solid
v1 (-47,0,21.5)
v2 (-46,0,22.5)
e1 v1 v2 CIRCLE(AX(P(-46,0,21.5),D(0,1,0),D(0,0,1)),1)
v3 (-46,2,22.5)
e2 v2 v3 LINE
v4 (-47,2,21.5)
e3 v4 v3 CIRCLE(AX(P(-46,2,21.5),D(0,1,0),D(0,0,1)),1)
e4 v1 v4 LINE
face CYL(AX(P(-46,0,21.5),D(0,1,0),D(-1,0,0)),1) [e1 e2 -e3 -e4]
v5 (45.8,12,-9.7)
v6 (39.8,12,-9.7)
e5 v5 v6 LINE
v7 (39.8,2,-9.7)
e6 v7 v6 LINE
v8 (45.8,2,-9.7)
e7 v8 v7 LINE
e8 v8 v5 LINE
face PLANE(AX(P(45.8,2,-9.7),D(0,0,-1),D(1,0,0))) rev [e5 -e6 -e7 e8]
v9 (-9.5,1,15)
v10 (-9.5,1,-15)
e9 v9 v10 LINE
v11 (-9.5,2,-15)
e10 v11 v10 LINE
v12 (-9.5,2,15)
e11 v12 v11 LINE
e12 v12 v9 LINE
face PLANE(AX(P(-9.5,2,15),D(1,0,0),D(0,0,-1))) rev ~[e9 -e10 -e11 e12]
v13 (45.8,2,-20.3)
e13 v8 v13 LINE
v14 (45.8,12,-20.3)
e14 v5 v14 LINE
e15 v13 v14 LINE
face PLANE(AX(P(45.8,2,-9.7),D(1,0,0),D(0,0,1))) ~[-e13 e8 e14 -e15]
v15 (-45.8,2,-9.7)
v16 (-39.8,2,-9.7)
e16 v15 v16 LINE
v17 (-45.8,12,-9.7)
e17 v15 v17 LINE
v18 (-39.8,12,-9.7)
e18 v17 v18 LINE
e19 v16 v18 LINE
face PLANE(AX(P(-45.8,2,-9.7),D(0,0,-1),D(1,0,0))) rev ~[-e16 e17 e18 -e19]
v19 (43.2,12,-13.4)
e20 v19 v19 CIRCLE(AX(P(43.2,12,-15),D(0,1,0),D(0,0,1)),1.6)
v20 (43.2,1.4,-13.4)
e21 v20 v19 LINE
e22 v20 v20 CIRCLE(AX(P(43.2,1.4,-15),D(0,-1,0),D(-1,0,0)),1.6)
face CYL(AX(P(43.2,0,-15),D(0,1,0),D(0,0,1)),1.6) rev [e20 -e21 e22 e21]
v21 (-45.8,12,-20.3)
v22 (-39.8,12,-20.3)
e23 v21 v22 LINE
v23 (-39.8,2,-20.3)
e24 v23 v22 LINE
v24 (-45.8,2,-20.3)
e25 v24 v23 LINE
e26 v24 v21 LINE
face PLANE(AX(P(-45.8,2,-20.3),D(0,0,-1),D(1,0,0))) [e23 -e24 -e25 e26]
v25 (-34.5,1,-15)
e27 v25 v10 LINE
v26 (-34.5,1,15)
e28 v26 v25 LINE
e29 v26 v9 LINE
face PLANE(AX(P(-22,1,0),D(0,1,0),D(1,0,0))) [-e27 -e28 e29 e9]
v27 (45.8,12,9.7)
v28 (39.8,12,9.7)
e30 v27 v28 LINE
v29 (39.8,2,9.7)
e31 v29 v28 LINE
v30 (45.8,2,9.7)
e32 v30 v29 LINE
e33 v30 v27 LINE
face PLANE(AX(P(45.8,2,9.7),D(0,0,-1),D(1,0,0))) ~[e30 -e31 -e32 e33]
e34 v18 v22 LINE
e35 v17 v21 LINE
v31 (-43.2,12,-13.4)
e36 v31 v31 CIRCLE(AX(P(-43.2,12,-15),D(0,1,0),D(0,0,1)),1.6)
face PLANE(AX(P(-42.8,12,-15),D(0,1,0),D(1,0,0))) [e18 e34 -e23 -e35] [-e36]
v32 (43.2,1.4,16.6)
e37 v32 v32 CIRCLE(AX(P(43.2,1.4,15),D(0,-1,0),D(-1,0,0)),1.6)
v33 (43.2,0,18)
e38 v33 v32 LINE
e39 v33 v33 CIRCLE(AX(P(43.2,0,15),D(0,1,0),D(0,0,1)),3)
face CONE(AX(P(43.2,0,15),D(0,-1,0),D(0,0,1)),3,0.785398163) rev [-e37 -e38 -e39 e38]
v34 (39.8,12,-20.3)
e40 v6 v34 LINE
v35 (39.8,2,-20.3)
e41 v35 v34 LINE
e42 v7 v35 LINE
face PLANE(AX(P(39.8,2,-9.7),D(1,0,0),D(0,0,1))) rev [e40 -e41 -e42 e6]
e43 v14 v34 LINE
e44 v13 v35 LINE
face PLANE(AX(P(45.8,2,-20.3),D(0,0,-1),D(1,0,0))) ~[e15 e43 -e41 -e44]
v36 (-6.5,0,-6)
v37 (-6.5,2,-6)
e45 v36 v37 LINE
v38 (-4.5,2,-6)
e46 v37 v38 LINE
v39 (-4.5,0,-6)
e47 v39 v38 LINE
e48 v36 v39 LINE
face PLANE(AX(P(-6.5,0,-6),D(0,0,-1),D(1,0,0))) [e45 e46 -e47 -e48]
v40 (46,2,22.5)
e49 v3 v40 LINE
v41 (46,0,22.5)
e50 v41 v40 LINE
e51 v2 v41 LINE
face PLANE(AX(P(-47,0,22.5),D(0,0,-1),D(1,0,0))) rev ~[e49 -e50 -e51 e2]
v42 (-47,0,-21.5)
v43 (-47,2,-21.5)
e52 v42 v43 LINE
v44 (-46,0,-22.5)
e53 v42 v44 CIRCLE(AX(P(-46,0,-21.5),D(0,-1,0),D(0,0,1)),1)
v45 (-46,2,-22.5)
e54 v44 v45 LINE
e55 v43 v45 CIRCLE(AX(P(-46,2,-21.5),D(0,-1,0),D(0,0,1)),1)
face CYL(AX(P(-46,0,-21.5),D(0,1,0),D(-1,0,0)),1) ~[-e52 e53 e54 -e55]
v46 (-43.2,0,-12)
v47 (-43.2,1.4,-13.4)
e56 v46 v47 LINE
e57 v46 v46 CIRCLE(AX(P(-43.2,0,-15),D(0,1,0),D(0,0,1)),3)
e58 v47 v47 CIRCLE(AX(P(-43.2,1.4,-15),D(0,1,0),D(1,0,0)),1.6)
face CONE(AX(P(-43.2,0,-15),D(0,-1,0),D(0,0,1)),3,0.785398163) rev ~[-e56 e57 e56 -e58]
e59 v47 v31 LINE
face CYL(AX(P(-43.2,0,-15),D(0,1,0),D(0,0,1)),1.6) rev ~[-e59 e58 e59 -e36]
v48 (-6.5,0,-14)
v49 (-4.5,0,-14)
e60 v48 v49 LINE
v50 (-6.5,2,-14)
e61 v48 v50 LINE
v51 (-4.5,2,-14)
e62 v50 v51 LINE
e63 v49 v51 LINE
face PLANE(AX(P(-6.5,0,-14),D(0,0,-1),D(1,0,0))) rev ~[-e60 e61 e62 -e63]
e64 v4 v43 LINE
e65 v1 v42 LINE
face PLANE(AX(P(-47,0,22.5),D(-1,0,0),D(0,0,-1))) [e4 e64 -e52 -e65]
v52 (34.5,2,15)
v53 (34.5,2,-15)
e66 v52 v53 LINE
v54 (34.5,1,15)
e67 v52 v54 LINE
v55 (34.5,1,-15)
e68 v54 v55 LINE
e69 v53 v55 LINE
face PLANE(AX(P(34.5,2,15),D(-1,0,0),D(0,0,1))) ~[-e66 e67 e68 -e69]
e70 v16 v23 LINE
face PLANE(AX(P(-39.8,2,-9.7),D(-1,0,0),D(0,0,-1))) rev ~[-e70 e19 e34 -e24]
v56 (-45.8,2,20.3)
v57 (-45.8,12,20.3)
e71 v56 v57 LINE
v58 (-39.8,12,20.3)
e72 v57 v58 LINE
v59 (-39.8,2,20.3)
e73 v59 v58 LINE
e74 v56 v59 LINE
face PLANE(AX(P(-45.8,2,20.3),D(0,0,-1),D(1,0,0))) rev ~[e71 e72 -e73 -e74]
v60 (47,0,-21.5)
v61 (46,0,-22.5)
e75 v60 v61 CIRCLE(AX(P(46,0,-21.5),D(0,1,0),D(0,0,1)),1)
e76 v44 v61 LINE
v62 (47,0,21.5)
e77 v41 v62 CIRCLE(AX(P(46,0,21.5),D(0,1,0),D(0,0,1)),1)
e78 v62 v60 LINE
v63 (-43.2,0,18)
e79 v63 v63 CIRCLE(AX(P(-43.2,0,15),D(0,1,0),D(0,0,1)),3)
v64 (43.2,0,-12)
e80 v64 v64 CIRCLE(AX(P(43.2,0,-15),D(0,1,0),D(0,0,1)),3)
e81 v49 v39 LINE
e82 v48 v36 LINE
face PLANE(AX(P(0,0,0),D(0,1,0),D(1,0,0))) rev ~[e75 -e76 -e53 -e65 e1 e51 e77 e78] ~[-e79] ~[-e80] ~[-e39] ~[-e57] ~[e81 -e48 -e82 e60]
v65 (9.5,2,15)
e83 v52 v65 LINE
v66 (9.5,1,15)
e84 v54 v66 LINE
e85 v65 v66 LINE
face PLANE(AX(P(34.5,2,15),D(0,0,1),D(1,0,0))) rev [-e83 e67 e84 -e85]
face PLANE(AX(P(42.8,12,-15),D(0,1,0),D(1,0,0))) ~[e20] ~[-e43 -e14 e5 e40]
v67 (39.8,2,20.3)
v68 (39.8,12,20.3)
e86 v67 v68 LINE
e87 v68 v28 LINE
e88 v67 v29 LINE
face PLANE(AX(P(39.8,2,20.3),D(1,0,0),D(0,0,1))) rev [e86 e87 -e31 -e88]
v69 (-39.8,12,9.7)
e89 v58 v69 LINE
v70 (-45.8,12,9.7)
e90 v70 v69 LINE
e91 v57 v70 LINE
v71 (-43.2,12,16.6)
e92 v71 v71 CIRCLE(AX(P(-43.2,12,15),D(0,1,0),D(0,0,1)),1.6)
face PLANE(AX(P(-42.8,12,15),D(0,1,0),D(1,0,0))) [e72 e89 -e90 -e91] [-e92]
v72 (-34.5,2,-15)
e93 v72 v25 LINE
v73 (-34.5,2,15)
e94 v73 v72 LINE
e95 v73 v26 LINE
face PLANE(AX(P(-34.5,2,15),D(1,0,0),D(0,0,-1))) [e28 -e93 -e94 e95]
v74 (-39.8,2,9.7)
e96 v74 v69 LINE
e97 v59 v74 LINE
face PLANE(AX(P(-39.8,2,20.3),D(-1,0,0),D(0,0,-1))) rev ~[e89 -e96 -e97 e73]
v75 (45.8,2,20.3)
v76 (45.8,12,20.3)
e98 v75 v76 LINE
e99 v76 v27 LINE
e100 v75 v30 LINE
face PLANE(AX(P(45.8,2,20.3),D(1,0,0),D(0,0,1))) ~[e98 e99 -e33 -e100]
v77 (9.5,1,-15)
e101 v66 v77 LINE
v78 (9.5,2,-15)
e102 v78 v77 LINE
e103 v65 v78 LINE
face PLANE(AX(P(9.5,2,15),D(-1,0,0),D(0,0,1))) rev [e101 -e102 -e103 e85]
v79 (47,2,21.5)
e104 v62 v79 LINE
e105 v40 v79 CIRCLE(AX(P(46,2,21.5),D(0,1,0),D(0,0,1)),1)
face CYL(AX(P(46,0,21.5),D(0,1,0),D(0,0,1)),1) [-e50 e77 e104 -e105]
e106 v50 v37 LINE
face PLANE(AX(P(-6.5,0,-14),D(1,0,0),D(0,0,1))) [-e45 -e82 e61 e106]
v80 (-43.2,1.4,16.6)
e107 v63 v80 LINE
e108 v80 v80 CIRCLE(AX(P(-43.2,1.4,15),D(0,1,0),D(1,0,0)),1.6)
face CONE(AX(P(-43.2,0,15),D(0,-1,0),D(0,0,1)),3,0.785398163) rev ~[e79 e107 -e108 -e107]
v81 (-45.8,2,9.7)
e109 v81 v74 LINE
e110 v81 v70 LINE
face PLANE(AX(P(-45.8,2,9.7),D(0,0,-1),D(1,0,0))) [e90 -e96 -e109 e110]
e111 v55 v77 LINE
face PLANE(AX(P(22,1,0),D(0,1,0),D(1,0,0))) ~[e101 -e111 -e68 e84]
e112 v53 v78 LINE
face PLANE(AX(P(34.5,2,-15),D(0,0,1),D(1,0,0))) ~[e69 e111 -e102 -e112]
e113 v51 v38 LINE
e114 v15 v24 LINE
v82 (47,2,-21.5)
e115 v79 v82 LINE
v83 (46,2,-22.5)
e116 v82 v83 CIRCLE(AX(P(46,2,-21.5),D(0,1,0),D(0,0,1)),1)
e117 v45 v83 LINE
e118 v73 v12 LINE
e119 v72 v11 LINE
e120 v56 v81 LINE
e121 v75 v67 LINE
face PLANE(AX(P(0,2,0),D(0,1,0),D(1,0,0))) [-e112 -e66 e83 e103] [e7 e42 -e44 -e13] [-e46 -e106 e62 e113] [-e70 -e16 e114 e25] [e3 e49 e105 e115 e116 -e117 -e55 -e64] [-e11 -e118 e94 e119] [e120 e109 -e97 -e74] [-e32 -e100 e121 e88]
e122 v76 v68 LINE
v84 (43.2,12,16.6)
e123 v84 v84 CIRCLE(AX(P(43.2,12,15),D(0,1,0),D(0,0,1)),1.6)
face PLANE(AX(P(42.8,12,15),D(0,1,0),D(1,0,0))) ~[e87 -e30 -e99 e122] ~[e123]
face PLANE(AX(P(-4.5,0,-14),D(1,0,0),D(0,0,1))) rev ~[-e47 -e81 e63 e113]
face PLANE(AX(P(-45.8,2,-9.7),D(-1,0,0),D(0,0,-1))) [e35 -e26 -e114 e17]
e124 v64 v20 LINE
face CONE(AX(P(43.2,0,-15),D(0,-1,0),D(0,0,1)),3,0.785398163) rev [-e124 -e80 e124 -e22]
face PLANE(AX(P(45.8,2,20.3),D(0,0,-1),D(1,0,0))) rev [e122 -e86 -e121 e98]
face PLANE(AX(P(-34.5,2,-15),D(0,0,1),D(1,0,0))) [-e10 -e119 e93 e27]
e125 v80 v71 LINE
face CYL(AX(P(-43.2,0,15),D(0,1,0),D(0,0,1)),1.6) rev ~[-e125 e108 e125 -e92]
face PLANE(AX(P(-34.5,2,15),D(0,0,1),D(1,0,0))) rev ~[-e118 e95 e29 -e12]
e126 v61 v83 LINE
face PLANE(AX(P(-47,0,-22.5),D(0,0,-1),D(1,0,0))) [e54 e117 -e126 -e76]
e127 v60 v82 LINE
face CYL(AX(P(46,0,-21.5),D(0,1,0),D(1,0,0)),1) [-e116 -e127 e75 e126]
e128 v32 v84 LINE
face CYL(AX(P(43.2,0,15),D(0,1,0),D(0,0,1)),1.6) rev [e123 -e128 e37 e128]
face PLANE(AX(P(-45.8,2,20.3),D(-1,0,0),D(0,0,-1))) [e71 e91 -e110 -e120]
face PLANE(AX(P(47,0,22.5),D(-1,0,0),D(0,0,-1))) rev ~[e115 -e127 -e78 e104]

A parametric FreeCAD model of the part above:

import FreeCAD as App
import Part
import Sketcher
from FreeCAD import Vector
Q = App.Units.Quantity


def edges_at(feature, points):
    """Names of the edges that pass closest to the given points."""
    edges = feature.Shape.Edges
    near = lambda p: min(range(len(edges)), key=lambda i: edges[i].distToShape(Part.Vertex(*p))[0])
    return sorted({f"Edge{near(p) + 1}" for p in points})

doc = App.newDocument("Part")
body = doc.addObject("PartDesign::Body", "Body")

# Sketch on XZ plane
sketch1 = doc.addObject("Sketcher::SketchObject", "Sketch")
body.addObject(sketch1)
sketch1.AttachmentSupport = (doc.XZ_Plane, [""])
sketch1.MapMode = "FlatFace"
sketch1.addGeometry([
    Part.LineSegment(Vector(-47, -22.5, 0), Vector(-47, 22.5, 0)),
    Part.LineSegment(Vector(-47, 22.5, 0), Vector(47, 22.5, 0)),
    Part.LineSegment(Vector(47, 22.5, 0), Vector(47, -22.5, 0)),
    Part.LineSegment(Vector(47, -22.5, 0), Vector(-47, -22.5, 0)),
], False)
sketch1.addConstraint([
    Sketcher.Constraint("Coincident", 0, 2, 1, 1),
    Sketcher.Constraint("Coincident", 1, 2, 2, 1),
    Sketcher.Constraint("Coincident", 2, 2, 3, 1),
    Sketcher.Constraint("Coincident", 3, 2, 0, 1),
    Sketcher.Constraint("Vertical", 0),
    Sketcher.Constraint("Horizontal", 1),
    Sketcher.Constraint("Vertical", 2),
    Sketcher.Constraint("Horizontal", 3),
    Sketcher.Constraint("Symmetric", 0, 2, 2, 2, -1, 1),
    Sketcher.Constraint("DistanceX", 1, 1, 1, 2, Q("94 mm")),
    Sketcher.Constraint("DistanceY", 0, 1, 0, 2, Q("45 mm")),
])
pad1 = doc.addObject("PartDesign::Pad", "Pad")
body.addObject(pad1)
pad1.Profile = sketch1
pad1.Length = 2
pad1.Reversed = True
doc.recompute()

fillet = doc.addObject("PartDesign::Fillet", "Fillet")
body.addObject(fillet)
fillet.Base = (pad1, edges_at(pad1, [
    (-47, 1, 22.5),
    (47, 1, 22.5),
    (47, 1, -22.5),
    (-47, 1, -22.5),
]))
fillet.Radius = 1

# Sketch on XZ plane
sketch2 = doc.addObject("Sketcher::SketchObject", "Sketch001")
body.addObject(sketch2)
sketch2.AttachmentSupport = (doc.XZ_Plane, [""])
sketch2.MapMode = "FlatFace"
sketch2.AttachmentOffset = App.Placement(Vector(0, 0, -2), App.Rotation())
sketch2.addGeometry([
    Part.LineSegment(Vector(-45.8, 9.7, 0), Vector(-45.8, 20.3, 0)),  # 0
    Part.LineSegment(Vector(-45.8, 20.3, 0), Vector(-39.8, 20.3, 0)),  # 1
    Part.LineSegment(Vector(-39.8, 20.3, 0), Vector(-39.8, 9.7, 0)),  # 2
    Part.LineSegment(Vector(-39.8, 9.7, 0), Vector(-45.8, 9.7, 0)),  # 3
    Part.LineSegment(Vector(-45.8, -20.3, 0), Vector(-45.8, -9.7, 0)),  # 4
    Part.LineSegment(Vector(-45.8, -9.7, 0), Vector(-39.8, -9.7, 0)),  # 5
    Part.LineSegment(Vector(-39.8, -9.7, 0), Vector(-39.8, -20.3, 0)),  # 6
    Part.LineSegment(Vector(-39.8, -20.3, 0), Vector(-45.8, -20.3, 0)),  # 7
], False)
sketch2.addConstraint([
    Sketcher.Constraint("Coincident", 0, 2, 1, 1),
    Sketcher.Constraint("Coincident", 1, 2, 2, 1),
    Sketcher.Constraint("Coincident", 2, 2, 3, 1),
    Sketcher.Constraint("Coincident", 3, 2, 0, 1),
    Sketcher.Constraint("Coincident", 4, 2, 5, 1),
    Sketcher.Constraint("Coincident", 5, 2, 6, 1),
    Sketcher.Constraint("Coincident", 6, 2, 7, 1),
    Sketcher.Constraint("Coincident", 7, 2, 4, 1),
    Sketcher.Constraint("Vertical", 0),
    Sketcher.Constraint("Horizontal", 1),
    Sketcher.Constraint("Vertical", 2),
    Sketcher.Constraint("Horizontal", 3),
    Sketcher.Constraint("Vertical", 4),
    Sketcher.Constraint("Horizontal", 5),
    Sketcher.Constraint("Vertical", 6),
    Sketcher.Constraint("Horizontal", 7),
    Sketcher.Constraint("Symmetric", 3, 2, 4, 2, -1),
    Sketcher.Constraint("Symmetric", 1, 2, 6, 2, -1),
    Sketcher.Constraint("DistanceX", 1, 1, 1, 2, Q("6 mm")),
    Sketcher.Constraint("DistanceY", 0, 1, 0, 2, Q("10.6 mm")),
    Sketcher.Constraint("DistanceY", 4, 2, 0, 2, Q("30 mm")),
    Sketcher.Constraint("DistanceX", 0, 2, -1, 1, Q("45.8 mm")),
])
pad2 = doc.addObject("PartDesign::Pad", "Pad001")
body.addObject(pad2)
pad2.Profile = sketch2
pad2.Length = 10
pad2.Reversed = True

# Sketch on XZ plane
sketch3 = doc.addObject("Sketcher::SketchObject", "Sketch002")
body.addObject(sketch3)
sketch3.AttachmentSupport = (doc.XZ_Plane, [""])
sketch3.MapMode = "FlatFace"
sketch3.AttachmentOffset = App.Placement(Vector(0, 0, -2), App.Rotation())
sketch3.addGeometry([
    Part.LineSegment(Vector(-34.5, -15, 0), Vector(-34.5, 15, 0)),
    Part.LineSegment(Vector(-34.5, 15, 0), Vector(-9.5, 15, 0)),
    Part.LineSegment(Vector(-9.5, 15, 0), Vector(-9.5, -15, 0)),
    Part.LineSegment(Vector(-9.5, -15, 0), Vector(-34.5, -15, 0)),
], False)
sketch3.addConstraint([
    Sketcher.Constraint("Coincident", 0, 2, 1, 1),
    Sketcher.Constraint("Coincident", 1, 2, 2, 1),
    Sketcher.Constraint("Coincident", 2, 2, 3, 1),
    Sketcher.Constraint("Coincident", 3, 2, 0, 1),
    Sketcher.Constraint("Vertical", 0),
    Sketcher.Constraint("Horizontal", 1),
    Sketcher.Constraint("Vertical", 2),
    Sketcher.Constraint("Horizontal", 3),
    Sketcher.Constraint("DistanceX", 1, 1, 1, 2, Q("25 mm")),
    Sketcher.Constraint("DistanceY", 0, 1, 0, 2, Q("30 mm")),
    Sketcher.Constraint("DistanceY", -1, 1, 0, 2, Q("15 mm")),
    Sketcher.Constraint("DistanceX", 0, 2, -1, 1, Q("34.5 mm")),
])
pocket1 = doc.addObject("PartDesign::Pocket", "Pocket")
body.addObject(pocket1)
pocket1.Profile = sketch3
pocket1.Length = 1
pocket1.Reversed = True

# Sketch on XZ plane
sketch4 = doc.addObject("Sketcher::SketchObject", "Sketch003")
body.addObject(sketch4)
sketch4.AttachmentSupport = (doc.XZ_Plane, [""])
sketch4.MapMode = "FlatFace"
sketch4.addGeometry([
    Part.Circle(Vector(-43.2, -15, 0), Vector(0, 0, 1), 1.6),
    Part.Circle(Vector(-43.2, 15, 0), Vector(0, 0, 1), 1.6),
], False)
sketch4.addConstraint([
    Sketcher.Constraint("Equal", 0, 1),
    Sketcher.Constraint("Symmetric", 0, 3, 1, 3, -1),
    Sketcher.Constraint("Diameter", 0, Q("3.2 mm")),
    Sketcher.Constraint("DistanceY", 0, 3, -1, 1, Q("15 mm")),
    Sketcher.Constraint("DistanceX", 0, 3, -1, 1, Q("43.2 mm")),
])
doc.recompute()
hole = doc.addObject("PartDesign::Hole", "Hole")
body.addObject(hole)
hole.Profile = sketch4
hole.ThreadType = "None"
hole.Diameter = 3.2
hole.DepthType = "Dimension"
hole.Depth = 15
hole.DrillPoint = "Flat"
hole.HoleCutType = "Countersink"
hole.HoleCutDiameter = 6
hole.HoleCutCountersinkAngle = 90
doc.recompute()

mirrored = doc.addObject("PartDesign::Mirrored", "Mirrored")
body.addObject(mirrored)
mirrored.Originals = [pad2, pocket1, hole]
mirrored.MirrorPlane = (doc.YZ_Plane, [""])
body.Tip = mirrored

# Sketch on XZ plane
sketch5 = doc.addObject("Sketcher::SketchObject", "Sketch004")
body.addObject(sketch5)
sketch5.AttachmentSupport = (doc.XZ_Plane, [""])
sketch5.MapMode = "FlatFace"
sketch5.addGeometry([
    Part.LineSegment(Vector(-6.5, -6, 0), Vector(-6.5, -14, 0)),
    Part.LineSegment(Vector(-6.5, -14, 0), Vector(-4.5, -14, 0)),
    Part.LineSegment(Vector(-4.5, -14, 0), Vector(-4.5, -6, 0)),
    Part.LineSegment(Vector(-4.5, -6, 0), Vector(-6.5, -6, 0)),
], False)
sketch5.addConstraint([
    Sketcher.Constraint("Coincident", 0, 2, 1, 1),
    Sketcher.Constraint("Coincident", 1, 2, 2, 1),
    Sketcher.Constraint("Coincident", 2, 2, 3, 1),
    Sketcher.Constraint("Coincident", 3, 2, 0, 1),
    Sketcher.Constraint("Vertical", 0),
    Sketcher.Constraint("Horizontal", 1),
    Sketcher.Constraint("Vertical", 2),
    Sketcher.Constraint("Horizontal", 3),
    Sketcher.Constraint("DistanceX", 1, 1, 1, 2, Q("2 mm")),
    Sketcher.Constraint("DistanceY", 0, 2, 0, 1, Q("8 mm")),
    Sketcher.Constraint("DistanceY", 0, 2, -1, 1, Q("14 mm")),
    Sketcher.Constraint("DistanceX", 0, 2, -1, 1, Q("6.5 mm")),
])
pocket2 = doc.addObject("PartDesign::Pocket", "Pocket001")
body.addObject(pocket2)
pocket2.Profile = sketch5
pocket2.Type = "UpToFirst"

doc.recompute()
